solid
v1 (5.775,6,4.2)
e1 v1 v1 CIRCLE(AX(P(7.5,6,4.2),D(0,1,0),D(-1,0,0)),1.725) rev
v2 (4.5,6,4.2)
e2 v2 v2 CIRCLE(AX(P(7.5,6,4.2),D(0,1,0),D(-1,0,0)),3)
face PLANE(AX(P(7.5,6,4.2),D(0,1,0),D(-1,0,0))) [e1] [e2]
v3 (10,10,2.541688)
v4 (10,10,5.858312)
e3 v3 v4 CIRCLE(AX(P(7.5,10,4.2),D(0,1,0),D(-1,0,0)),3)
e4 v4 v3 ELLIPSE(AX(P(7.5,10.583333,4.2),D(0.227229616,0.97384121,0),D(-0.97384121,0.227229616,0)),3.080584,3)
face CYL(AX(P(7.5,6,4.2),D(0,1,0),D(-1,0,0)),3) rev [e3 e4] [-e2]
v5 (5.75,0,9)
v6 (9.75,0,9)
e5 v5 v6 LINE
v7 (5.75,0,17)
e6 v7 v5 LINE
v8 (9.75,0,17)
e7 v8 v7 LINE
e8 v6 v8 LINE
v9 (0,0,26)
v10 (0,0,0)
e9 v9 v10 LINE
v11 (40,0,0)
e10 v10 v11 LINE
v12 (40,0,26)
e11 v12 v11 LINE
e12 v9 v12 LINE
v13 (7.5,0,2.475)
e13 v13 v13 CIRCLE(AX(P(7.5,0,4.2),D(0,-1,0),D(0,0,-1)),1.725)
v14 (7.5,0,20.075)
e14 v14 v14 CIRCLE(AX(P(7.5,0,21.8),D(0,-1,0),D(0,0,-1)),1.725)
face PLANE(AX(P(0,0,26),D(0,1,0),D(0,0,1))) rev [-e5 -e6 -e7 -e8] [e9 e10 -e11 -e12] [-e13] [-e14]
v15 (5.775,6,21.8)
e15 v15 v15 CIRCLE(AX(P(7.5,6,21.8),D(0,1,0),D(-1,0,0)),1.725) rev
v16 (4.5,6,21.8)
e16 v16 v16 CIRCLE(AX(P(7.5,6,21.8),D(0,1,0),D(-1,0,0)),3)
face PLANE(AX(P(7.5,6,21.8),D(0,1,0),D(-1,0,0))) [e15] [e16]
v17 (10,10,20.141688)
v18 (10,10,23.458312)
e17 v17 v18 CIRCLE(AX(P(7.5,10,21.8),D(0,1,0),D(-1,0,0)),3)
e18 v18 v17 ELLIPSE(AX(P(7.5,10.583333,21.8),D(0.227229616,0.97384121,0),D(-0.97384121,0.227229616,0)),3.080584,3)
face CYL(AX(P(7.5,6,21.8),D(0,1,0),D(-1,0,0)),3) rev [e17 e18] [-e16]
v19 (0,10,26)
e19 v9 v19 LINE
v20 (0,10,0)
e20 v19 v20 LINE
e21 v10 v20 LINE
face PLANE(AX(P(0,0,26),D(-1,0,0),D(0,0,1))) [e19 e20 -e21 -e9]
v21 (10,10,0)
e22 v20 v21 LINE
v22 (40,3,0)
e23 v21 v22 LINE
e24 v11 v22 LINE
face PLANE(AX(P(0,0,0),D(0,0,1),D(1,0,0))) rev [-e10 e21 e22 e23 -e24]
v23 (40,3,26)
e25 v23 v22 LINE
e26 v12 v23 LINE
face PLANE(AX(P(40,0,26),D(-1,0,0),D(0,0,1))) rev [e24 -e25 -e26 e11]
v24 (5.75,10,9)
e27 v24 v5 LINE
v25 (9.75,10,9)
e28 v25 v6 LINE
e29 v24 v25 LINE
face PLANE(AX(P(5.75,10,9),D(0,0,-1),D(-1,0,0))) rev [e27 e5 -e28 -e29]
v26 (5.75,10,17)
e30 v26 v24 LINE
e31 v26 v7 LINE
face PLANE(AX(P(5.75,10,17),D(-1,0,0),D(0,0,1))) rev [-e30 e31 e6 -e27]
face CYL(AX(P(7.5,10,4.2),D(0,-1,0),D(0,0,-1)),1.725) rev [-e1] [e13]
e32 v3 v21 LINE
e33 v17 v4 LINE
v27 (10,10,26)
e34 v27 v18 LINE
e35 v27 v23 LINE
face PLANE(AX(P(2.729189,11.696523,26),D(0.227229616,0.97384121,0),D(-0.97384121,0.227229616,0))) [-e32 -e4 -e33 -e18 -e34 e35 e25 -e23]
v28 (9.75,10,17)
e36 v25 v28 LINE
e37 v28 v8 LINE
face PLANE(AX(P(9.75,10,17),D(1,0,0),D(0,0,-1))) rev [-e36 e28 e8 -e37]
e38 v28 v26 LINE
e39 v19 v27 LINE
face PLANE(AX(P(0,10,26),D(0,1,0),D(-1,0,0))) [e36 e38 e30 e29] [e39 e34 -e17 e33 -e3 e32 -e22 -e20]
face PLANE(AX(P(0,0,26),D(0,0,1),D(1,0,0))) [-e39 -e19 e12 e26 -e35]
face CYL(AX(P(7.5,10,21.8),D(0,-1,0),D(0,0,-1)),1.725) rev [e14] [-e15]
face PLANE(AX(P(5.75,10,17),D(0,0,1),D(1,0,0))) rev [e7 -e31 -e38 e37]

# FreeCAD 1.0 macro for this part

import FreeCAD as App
import Part
import Sketcher

V = App.Vector


def add_polygon(sketch, points):
    """Adds a closed chain of lines whose ends are joined by coincident constraints."""
    first, n = sketch.GeometryCount, len(points)
    for a, b in zip(points, points[1:] + points[:1]):
        sketch.addGeometry(Part.LineSegment(App.Vector(*a, 0), App.Vector(*b, 0)), False)
    for i in range(n):
        sketch.addConstraint(Sketcher.Constraint("Coincident", first + i, 2, first + (i + 1) % n, 1))

doc = App.newDocument("Part")
body = doc.addObject("PartDesign::Body", "Body")

# Sketch on XY plane
sketch1 = body.newObject("Sketcher::SketchObject", "Sketch")
sketch1.AttachmentSupport = (doc.getObject("XY_Plane"), [""])
sketch1.MapMode = "FlatFace"
add_polygon(sketch1, [(0, 0), (40, 0), (40, 3), (10, 10), (0, 10)])  # lines 0-4
sketch1.addConstraint([
    Sketcher.Constraint("Horizontal", 0),
    Sketcher.Constraint("Vertical", 1),
    Sketcher.Constraint("Horizontal", 3),
    Sketcher.Constraint("Vertical", 4),
    Sketcher.Constraint("Coincident", 4, 2, -1, 1),
    Sketcher.Constraint("Equal", 3, 4),
    Sketcher.Constraint("DistanceX", 0, 1, 0, 2, 40.0),
    Sketcher.Constraint("DistanceX", 3, 2, 3, 1, 10.0),
    Sketcher.Constraint("DistanceY", 1, 1, 1, 2, 3.0),
])
pad1 = body.newObject("PartDesign::Pad", "Pad")
pad1.Profile = sketch1
pad1.Length = 26

# Sketch on XZ plane
sketch2 = body.newObject("Sketcher::SketchObject", "Sketch001")
sketch2.AttachmentSupport = (doc.getObject("XZ_Plane"), [""])
sketch2.MapMode = "FlatFace"
sketch2.addGeometry(Part.Circle(V(7.5, 21.8, 0), V(0, 0, 1), 1.7), False)  # 0
sketch2.addGeometry(Part.Circle(V(7.5, 4.2, 0), V(0, 0, 1), 1.7), False)  # 1
add_polygon(sketch2, [(5.8, 17), (5.8, 9), (9.8, 9), (9.8, 17)])  # lines 2-5
sketch2.addConstraint([
    Sketcher.Constraint("Vertical", 2),
    Sketcher.Constraint("Horizontal", 3),
    Sketcher.Constraint("Vertical", 4),
    Sketcher.Constraint("Horizontal", 5),
    Sketcher.Constraint("Equal", 0, 1),
    Sketcher.Constraint("Vertical", 0, 3, 1, 3),
    Sketcher.Constraint("Diameter", 0, 3.45),
    Sketcher.Constraint("DistanceX", 3, 1, 3, 2, 4.0),
    Sketcher.Constraint("DistanceY", 2, 2, 2, 1, 8.0),
    Sketcher.Constraint("DistanceY", -1, 1, 2, 2, 9.0),
    Sketcher.Constraint("DistanceX", -1, 1, 0, 3, 7.5),
    Sketcher.Constraint("DistanceY", -1, 1, 0, 3, 21.8),
    Sketcher.Constraint("DistanceY", -1, 1, 1, 3, 4.2),
    Sketcher.Constraint("DistanceX", -1, 1, 2, 2, 5.75),
])
pocket1 = body.newObject("PartDesign::Pocket", "Pocket")
pocket1.Profile = sketch2
pocket1.Type = "ThroughAll"

# Sketch on XZ plane
sketch3 = body.newObject("Sketcher::SketchObject", "Sketch002")
sketch3.AttachmentSupport = (doc.getObject("XZ_Plane"), [""])
sketch3.MapMode = "FlatFace"
sketch3.AttachmentOffset = App.Placement(V(0, 0, -10), App.Rotation())
sketch3.addGeometry([
    Part.Circle(V(7.5, 4.2, 0), V(0, 0, 1), 3),
    Part.Circle(V(7.5, 21.8, 0), V(0, 0, 1), 3),
], False)
sketch3.addConstraint([
    Sketcher.Constraint("Equal", 0, 1),
    Sketcher.Constraint("Vertical", 0, 3, 1, 3),
    Sketcher.Constraint("Diameter", 0, 6.0),
    Sketcher.Constraint("DistanceX", -1, 1, 0, 3, 7.5),
    Sketcher.Constraint("DistanceY", -1, 1, 0, 3, 4.2),
    Sketcher.Constraint("DistanceY", -1, 1, 1, 3, 21.8),
])
pocket2 = body.newObject("PartDesign::Pocket", "Pocket001")
pocket2.Profile = sketch3
pocket2.Length = 4
pocket2.Reversed = True

doc.recompute()
